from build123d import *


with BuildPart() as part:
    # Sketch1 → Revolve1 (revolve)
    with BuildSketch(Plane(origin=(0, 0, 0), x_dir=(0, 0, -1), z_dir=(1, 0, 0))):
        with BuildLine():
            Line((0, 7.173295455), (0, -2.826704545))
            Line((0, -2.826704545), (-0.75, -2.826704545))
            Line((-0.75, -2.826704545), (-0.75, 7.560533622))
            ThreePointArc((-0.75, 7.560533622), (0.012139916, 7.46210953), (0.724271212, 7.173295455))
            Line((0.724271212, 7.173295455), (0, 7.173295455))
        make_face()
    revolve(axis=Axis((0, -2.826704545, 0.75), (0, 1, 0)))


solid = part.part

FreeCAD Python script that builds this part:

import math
import FreeCAD as App
import Part
import Sketcher

V = App.Vector
Q = App.Units.Quantity

doc = App.newDocument("Part")
body = doc.addObject("PartDesign::Body", "Body")

sketch1 = body.newObject("Sketcher::SketchObject", "Sketch")
sketch1.AttachmentSupport = (doc.getObject("YZ_Plane"), [""])
sketch1.MapMode = "FlatFace"
sketch1.addGeometry([
    Part.LineSegment(V(-2.8, 0, 0), V(7.2, 0, 0)),
    Part.LineSegment(V(7.2, 0, 0), V(7.2, -0.7, 0)),
    Part.ArcOfCircle(Part.Circle(V(4.6, 0.7, 0), V(0, 0, 1), 3), math.radians(-29), math.radians(0)),
    Part.LineSegment(V(7.6, 0.8, 0), V(-2.8, 0.8, 0)),
    Part.LineSegment(V(-2.8, 0.8, 0), V(-2.8, 0, 0)),
], False)
sketch1.addGeometry(Part.LineSegment(V(-2.8, 0.8, 0), V(7.6, 0.8, 0)), True)
sketch1.addConstraint([
    Sketcher.Constraint("Coincident", 0, 2, 1, 1),
    Sketcher.Constraint("Coincident", 1, 2, 2, 1),
    Sketcher.Constraint("Coincident", 2, 2, 3, 1),
    Sketcher.Constraint("Coincident", 3, 2, 4, 1),
    Sketcher.Constraint("Coincident", 4, 2, 0, 1),
    Sketcher.Constraint("Horizontal", 0),
    Sketcher.Constraint("Vertical", 1),
    Sketcher.Constraint("Horizontal", 3),
    Sketcher.Constraint("Vertical", 4),
    Sketcher.Constraint("Horizontal", 5),
    Sketcher.Constraint("Coincident", 5, 1, 3, 2),
    Sketcher.Constraint("PointOnObject", 0, 2, -1),
    Sketcher.Constraint("Equal", 3, 5),
    Sketcher.Constraint("Radius", 2, Q("3 mm")),
    Sketcher.Constraint("DistanceX", 0, 1, 0, 2, Q("10 mm")),
    Sketcher.Constraint("DistanceY", 4, 2, 4, 1, Q("0.75 mm")),
    Sketcher.Constraint("DistanceY", -1, 1, 2, 3, Q("0.75 mm")),
    Sketcher.Constraint("DistanceX", 3, 2, 3, 1, Q("10.387238 mm")),
    Sketcher.Constraint("DistanceX", -1, 1, 2, 3, Q("4.560534 mm")),
])
revolution = body.newObject("PartDesign::Revolution", "Revolution")
revolution.Profile = sketch1
revolution.ReferenceAxis = (sketch1, ["Axis0"])
revolution.Angle = 360

doc.recompute()
